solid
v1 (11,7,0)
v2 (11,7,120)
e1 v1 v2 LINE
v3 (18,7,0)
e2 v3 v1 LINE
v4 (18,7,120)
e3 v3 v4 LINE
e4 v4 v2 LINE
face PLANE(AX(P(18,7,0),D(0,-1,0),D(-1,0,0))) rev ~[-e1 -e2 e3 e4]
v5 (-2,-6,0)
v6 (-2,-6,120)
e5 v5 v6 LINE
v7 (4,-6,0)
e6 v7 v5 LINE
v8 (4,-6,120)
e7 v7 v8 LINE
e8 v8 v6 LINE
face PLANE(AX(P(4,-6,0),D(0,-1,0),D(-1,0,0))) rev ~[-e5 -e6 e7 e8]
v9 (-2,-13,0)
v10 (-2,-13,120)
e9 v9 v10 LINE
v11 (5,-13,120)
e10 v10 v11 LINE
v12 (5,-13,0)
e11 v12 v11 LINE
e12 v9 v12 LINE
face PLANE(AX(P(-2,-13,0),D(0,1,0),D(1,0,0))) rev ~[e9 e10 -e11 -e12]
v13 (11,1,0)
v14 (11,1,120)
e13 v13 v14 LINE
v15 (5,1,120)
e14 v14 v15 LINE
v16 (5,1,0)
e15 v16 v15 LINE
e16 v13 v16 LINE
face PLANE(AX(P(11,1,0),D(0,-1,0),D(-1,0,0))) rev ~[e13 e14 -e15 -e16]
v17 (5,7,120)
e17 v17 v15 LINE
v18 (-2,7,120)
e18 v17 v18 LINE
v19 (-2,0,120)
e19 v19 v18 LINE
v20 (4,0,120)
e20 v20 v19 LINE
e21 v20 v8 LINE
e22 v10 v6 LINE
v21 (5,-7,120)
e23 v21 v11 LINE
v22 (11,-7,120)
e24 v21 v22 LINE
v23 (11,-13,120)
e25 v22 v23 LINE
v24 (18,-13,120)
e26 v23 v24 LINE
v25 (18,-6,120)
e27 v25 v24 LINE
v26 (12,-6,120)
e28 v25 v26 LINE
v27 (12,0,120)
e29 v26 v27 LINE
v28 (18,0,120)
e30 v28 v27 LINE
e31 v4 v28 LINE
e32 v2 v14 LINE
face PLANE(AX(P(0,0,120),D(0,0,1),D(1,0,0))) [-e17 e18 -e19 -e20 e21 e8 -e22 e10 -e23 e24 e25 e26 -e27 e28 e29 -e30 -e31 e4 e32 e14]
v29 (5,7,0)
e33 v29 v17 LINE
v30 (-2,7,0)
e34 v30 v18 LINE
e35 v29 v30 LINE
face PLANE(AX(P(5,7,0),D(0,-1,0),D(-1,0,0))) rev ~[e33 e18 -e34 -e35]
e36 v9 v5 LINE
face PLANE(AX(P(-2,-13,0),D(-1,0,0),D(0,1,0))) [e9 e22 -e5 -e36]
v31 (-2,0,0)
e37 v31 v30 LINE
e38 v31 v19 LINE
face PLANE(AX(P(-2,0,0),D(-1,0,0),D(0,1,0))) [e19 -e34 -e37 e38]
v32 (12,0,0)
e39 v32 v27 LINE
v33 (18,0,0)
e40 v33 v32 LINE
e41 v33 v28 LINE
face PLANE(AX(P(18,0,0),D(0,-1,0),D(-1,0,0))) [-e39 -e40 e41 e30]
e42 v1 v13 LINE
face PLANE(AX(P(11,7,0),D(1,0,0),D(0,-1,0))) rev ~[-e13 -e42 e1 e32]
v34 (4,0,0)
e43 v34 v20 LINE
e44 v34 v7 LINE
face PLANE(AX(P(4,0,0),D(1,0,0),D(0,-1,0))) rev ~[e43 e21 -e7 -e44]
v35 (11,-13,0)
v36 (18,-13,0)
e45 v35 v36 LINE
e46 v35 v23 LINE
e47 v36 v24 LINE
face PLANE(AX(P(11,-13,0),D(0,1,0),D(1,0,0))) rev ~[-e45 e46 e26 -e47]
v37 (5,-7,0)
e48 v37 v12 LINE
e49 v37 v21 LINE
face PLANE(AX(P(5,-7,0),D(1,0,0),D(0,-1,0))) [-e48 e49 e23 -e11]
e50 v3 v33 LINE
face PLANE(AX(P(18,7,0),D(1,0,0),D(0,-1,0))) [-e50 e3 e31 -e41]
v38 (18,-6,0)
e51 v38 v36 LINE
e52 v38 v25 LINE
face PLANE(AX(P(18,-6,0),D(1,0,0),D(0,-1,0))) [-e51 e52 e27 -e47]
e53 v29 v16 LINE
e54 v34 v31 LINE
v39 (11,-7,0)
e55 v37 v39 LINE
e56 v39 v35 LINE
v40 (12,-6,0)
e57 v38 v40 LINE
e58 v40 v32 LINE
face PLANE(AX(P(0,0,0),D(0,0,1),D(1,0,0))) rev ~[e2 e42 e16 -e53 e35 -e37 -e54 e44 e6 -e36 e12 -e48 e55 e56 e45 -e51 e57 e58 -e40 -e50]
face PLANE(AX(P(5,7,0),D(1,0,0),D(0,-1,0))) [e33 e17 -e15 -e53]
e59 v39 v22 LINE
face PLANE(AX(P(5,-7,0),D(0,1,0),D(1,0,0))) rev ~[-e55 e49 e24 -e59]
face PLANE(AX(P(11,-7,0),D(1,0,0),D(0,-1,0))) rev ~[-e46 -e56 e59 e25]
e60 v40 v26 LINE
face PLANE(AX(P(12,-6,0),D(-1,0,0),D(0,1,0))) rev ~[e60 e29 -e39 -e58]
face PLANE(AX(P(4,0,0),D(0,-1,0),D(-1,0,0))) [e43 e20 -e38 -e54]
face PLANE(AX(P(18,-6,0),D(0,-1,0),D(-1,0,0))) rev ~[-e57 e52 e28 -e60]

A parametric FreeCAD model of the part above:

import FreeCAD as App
import Part
import Sketcher

V = App.Vector
Q = App.Units.Quantity

doc = App.newDocument("Part")
body = doc.addObject("PartDesign::Body", "Body")

sketch1 = body.newObject("Sketcher::SketchObject", "Sketch")
sketch1.AttachmentSupport = (doc.getObject("XY_Plane"), [""])
sketch1.MapMode = "FlatFace"
sketch1.addGeometry([
    Part.LineSegment(V(18, 0, 0), V(18, 7, 0)),
    Part.LineSegment(V(18, 7, 0), V(11, 7, 0)),
    Part.LineSegment(V(11, 7, 0), V(11, 1, 0)),
    Part.LineSegment(V(11, 1, 0), V(5, 1, 0)),
    Part.LineSegment(V(5, 1, 0), V(5, 7, 0)),
    Part.LineSegment(V(5, 7, 0), V(-2, 7, 0)),
    Part.LineSegment(V(-2, 7, 0), V(-2, 0, 0)),
    Part.LineSegment(V(-2, 0, 0), V(4, 0, 0)),
    Part.LineSegment(V(4, 0, 0), V(4, -6, 0)),
    Part.LineSegment(V(4, -6, 0), V(-2, -6, 0)),
    Part.LineSegment(V(-2, -6, 0), V(-2, -13, 0)),
    Part.LineSegment(V(-2, -13, 0), V(5, -13, 0)),
    Part.LineSegment(V(5, -13, 0), V(5, -7, 0)),
    Part.LineSegment(V(5, -7, 0), V(11, -7, 0)),
    Part.LineSegment(V(11, -7, 0), V(11, -13, 0)),
    Part.LineSegment(V(11, -13, 0), V(18, -13, 0)),
    Part.LineSegment(V(18, -13, 0), V(18, -6, 0)),
    Part.LineSegment(V(18, -6, 0), V(12, -6, 0)),
    Part.LineSegment(V(12, -6, 0), V(12, 0, 0)),
    Part.LineSegment(V(12, 0, 0), V(18, 0, 0)),
], False)
sketch1.addConstraint([
    Sketcher.Constraint("Coincident", 0, 2, 1, 1),
    Sketcher.Constraint("Coincident", 1, 2, 2, 1),
    Sketcher.Constraint("Coincident", 2, 2, 3, 1),
    Sketcher.Constraint("Coincident", 3, 2, 4, 1),
    Sketcher.Constraint("Coincident", 4, 2, 5, 1),
    Sketcher.Constraint("Coincident", 5, 2, 6, 1),
    Sketcher.Constraint("Coincident", 6, 2, 7, 1),
    Sketcher.Constraint("Coincident", 7, 2, 8, 1),
    Sketcher.Constraint("Coincident", 8, 2, 9, 1),
    Sketcher.Constraint("Coincident", 9, 2, 10, 1),
    Sketcher.Constraint("Coincident", 10, 2, 11, 1),
    Sketcher.Constraint("Coincident", 11, 2, 12, 1),
    Sketcher.Constraint("Coincident", 12, 2, 13, 1),
    Sketcher.Constraint("Coincident", 13, 2, 14, 1),
    Sketcher.Constraint("Coincident", 14, 2, 15, 1),
    Sketcher.Constraint("Coincident", 15, 2, 16, 1),
    Sketcher.Constraint("Coincident", 16, 2, 17, 1),
    Sketcher.Constraint("Coincident", 17, 2, 18, 1),
    Sketcher.Constraint("Coincident", 18, 2, 19, 1),
    Sketcher.Constraint("Coincident", 19, 2, 0, 1),
    Sketcher.Constraint("Vertical", 0),
    Sketcher.Constraint("Horizontal", 1),
    Sketcher.Constraint("Vertical", 2),
    Sketcher.Constraint("Horizontal", 3),
    Sketcher.Constraint("Vertical", 4),
    Sketcher.Constraint("Horizontal", 5),
    Sketcher.Constraint("Vertical", 6),
    Sketcher.Constraint("Horizontal", 7),
    Sketcher.Constraint("Vertical", 8),
    Sketcher.Constraint("Horizontal", 9),
    Sketcher.Constraint("Vertical", 10),
    Sketcher.Constraint("Horizontal", 11),
    Sketcher.Constraint("Vertical", 12),
    Sketcher.Constraint("Horizontal", 13),
    Sketcher.Constraint("Vertical", 14),
    Sketcher.Constraint("Horizontal", 15),
    Sketcher.Constraint("Vertical", 16),
    Sketcher.Constraint("Horizontal", 17),
    Sketcher.Constraint("Vertical", 18),
    Sketcher.Constraint("Horizontal", 19),
    Sketcher.Constraint("Symmetric", 4, 2, 12, 2, -1),
    Sketcher.Constraint("Symmetric", 1, 2, 13, 2, -1),
    Sketcher.Constraint("PointOnObject", 6, 2, -1),
    Sketcher.Constraint("PointOnObject", 18, 2, -1),
    Sketcher.Constraint("Horizontal", 11, 2, 14, 2),
    Sketcher.Constraint("Horizontal", 9, 2, 16, 2),
    Sketcher.Constraint("Vertical", 6, 2, 9, 2),
    Sketcher.Constraint("Vertical", 0, 2, 15, 2),
    Sketcher.Constraint("Equal", 1, 5),
    Sketcher.Constraint("Equal", 3, 7),
    Sketcher.Constraint("Equal", 13, 17),
    Sketcher.Constraint("Equal", 15, 0),
    Sketcher.Constraint("Equal", 19, 2),
    Sketcher.Constraint("Equal", 4, 8),
    Sketcher.Constraint("Equal", 6, 10),
    Sketcher.Constraint("DistanceX", 1, 2, 1, 1, Q("7 mm")),
    Sketcher.Constraint("DistanceX", 3, 2, 3, 1, Q("6 mm")),
    Sketcher.Constraint("DistanceX", -1, 1, 0, 2, Q("18 mm")),
])
pad1 = body.newObject("PartDesign::Pad", "Pad")
pad1.Profile = sketch1
pad1.Length = 120

doc.recompute()
